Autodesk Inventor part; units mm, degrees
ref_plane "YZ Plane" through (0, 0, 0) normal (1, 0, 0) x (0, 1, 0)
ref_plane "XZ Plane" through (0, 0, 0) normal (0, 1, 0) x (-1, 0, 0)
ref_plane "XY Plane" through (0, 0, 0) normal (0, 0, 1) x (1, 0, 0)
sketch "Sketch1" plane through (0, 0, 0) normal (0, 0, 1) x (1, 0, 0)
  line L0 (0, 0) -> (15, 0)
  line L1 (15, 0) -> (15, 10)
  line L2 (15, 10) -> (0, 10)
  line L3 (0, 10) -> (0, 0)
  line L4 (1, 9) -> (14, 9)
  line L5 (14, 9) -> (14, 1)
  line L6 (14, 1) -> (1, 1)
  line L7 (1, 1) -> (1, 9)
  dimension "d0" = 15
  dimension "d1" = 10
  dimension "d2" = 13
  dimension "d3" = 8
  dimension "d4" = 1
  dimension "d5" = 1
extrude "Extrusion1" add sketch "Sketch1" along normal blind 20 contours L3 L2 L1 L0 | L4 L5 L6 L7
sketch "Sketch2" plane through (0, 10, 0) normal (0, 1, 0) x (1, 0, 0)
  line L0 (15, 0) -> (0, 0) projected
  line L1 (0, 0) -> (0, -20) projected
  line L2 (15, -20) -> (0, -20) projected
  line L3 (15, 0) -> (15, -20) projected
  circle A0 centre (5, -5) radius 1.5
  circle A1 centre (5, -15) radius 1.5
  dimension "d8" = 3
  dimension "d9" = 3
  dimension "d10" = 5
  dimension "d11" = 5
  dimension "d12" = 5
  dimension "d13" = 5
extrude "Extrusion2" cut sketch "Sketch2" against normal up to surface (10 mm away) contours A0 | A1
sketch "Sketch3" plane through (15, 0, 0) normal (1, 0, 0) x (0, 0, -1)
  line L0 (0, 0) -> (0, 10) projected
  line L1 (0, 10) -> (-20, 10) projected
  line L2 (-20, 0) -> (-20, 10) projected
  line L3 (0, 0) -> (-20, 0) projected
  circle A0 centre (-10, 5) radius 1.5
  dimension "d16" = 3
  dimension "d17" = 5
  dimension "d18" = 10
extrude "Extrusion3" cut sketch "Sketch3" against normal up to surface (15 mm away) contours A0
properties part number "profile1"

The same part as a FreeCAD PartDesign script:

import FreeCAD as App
import Part
import Sketcher

V = App.Vector
Q = App.Units.Quantity

doc = App.newDocument("Part")
body = doc.addObject("PartDesign::Body", "Body")

sketch1 = body.newObject("Sketcher::SketchObject", "Sketch")
sketch1.AttachmentSupport = (doc.getObject("XY_Plane"), [""])
sketch1.MapMode = "FlatFace"
sketch1.addGeometry([
    Part.LineSegment(V(0, 10, 0), V(0, 0, 0)),
    Part.LineSegment(V(0, 0, 0), V(15, 0, 0)),
    Part.LineSegment(V(15, 0, 0), V(15, 10, 0)),
    Part.LineSegment(V(15, 10, 0), V(0, 10, 0)),
], False)
sketch1.addConstraint([
    Sketcher.Constraint("Coincident", 0, 2, 1, 1),
    Sketcher.Constraint("Coincident", 1, 2, 2, 1),
    Sketcher.Constraint("Coincident", 2, 2, 3, 1),
    Sketcher.Constraint("Coincident", 3, 2, 0, 1),
    Sketcher.Constraint("Vertical", 0),
    Sketcher.Constraint("Horizontal", 1),
    Sketcher.Constraint("Vertical", 2),
    Sketcher.Constraint("Horizontal", 3),
    Sketcher.Constraint("Coincident", 0, 2, -1, 1),
    Sketcher.Constraint("DistanceX", 1, 1, 1, 2, Q("15 mm")),
    Sketcher.Constraint("DistanceY", 0, 2, 0, 1, Q("10 mm")),
])
pad1 = body.newObject("PartDesign::Pad", "Pad")
pad1.Profile = sketch1
pad1.Length = 20

sketch2 = body.newObject("Sketcher::SketchObject", "Sketch001")
sketch2.AttachmentSupport = (doc.getObject("XZ_Plane"), [""])
sketch2.MapMode = "FlatFace"
sketch2.AttachmentOffset = App.Placement(V(0, 0, -10), App.Rotation())
sketch2.addGeometry([
    Part.Circle(V(5, 5, 0), V(0, 0, 1), 1.5),
    Part.Circle(V(5, 15, 0), V(0, 0, 1), 1.5),
], False)
sketch2.addConstraint([
    Sketcher.Constraint("Equal", 0, 1),
    Sketcher.Constraint("Vertical", 0, 3, 1, 3),
    Sketcher.Constraint("Diameter", 0, Q("3 mm")),
    Sketcher.Constraint("DistanceX", -1, 1, 0, 3, Q("5 mm")),
    Sketcher.Constraint("DistanceY", -1, 1, 0, 3, Q("5 mm")),
    Sketcher.Constraint("DistanceY", -1, 1, 1, 3, Q("15 mm")),
])
pocket1 = body.newObject("PartDesign::Pocket", "Pocket")
pocket1.Profile = sketch2
pocket1.Length = 10
pocket1.Reversed = True

sketch3 = body.newObject("Sketcher::SketchObject", "Sketch002")
sketch3.AttachmentSupport = (doc.getObject("YZ_Plane"), [""])
sketch3.MapMode = "FlatFace"
sketch3.AttachmentOffset = App.Placement(V(0, 0, 15), App.Rotation())
sketch3.addGeometry(Part.Circle(V(5, 10, 0), V(0, 0, 1), 1.5), False)
sketch3.addConstraint([
    Sketcher.Constraint("Diameter", 0, Q("3 mm")),
    Sketcher.Constraint("DistanceX", -1, 1, 0, 3, Q("5 mm")),
    Sketcher.Constraint("DistanceY", -1, 1, 0, 3, Q("10 mm")),
])
pocket2 = body.newObject("PartDesign::Pocket", "Pocket001")
pocket2.Profile = sketch3
pocket2.Length = 15

doc.recompute()
